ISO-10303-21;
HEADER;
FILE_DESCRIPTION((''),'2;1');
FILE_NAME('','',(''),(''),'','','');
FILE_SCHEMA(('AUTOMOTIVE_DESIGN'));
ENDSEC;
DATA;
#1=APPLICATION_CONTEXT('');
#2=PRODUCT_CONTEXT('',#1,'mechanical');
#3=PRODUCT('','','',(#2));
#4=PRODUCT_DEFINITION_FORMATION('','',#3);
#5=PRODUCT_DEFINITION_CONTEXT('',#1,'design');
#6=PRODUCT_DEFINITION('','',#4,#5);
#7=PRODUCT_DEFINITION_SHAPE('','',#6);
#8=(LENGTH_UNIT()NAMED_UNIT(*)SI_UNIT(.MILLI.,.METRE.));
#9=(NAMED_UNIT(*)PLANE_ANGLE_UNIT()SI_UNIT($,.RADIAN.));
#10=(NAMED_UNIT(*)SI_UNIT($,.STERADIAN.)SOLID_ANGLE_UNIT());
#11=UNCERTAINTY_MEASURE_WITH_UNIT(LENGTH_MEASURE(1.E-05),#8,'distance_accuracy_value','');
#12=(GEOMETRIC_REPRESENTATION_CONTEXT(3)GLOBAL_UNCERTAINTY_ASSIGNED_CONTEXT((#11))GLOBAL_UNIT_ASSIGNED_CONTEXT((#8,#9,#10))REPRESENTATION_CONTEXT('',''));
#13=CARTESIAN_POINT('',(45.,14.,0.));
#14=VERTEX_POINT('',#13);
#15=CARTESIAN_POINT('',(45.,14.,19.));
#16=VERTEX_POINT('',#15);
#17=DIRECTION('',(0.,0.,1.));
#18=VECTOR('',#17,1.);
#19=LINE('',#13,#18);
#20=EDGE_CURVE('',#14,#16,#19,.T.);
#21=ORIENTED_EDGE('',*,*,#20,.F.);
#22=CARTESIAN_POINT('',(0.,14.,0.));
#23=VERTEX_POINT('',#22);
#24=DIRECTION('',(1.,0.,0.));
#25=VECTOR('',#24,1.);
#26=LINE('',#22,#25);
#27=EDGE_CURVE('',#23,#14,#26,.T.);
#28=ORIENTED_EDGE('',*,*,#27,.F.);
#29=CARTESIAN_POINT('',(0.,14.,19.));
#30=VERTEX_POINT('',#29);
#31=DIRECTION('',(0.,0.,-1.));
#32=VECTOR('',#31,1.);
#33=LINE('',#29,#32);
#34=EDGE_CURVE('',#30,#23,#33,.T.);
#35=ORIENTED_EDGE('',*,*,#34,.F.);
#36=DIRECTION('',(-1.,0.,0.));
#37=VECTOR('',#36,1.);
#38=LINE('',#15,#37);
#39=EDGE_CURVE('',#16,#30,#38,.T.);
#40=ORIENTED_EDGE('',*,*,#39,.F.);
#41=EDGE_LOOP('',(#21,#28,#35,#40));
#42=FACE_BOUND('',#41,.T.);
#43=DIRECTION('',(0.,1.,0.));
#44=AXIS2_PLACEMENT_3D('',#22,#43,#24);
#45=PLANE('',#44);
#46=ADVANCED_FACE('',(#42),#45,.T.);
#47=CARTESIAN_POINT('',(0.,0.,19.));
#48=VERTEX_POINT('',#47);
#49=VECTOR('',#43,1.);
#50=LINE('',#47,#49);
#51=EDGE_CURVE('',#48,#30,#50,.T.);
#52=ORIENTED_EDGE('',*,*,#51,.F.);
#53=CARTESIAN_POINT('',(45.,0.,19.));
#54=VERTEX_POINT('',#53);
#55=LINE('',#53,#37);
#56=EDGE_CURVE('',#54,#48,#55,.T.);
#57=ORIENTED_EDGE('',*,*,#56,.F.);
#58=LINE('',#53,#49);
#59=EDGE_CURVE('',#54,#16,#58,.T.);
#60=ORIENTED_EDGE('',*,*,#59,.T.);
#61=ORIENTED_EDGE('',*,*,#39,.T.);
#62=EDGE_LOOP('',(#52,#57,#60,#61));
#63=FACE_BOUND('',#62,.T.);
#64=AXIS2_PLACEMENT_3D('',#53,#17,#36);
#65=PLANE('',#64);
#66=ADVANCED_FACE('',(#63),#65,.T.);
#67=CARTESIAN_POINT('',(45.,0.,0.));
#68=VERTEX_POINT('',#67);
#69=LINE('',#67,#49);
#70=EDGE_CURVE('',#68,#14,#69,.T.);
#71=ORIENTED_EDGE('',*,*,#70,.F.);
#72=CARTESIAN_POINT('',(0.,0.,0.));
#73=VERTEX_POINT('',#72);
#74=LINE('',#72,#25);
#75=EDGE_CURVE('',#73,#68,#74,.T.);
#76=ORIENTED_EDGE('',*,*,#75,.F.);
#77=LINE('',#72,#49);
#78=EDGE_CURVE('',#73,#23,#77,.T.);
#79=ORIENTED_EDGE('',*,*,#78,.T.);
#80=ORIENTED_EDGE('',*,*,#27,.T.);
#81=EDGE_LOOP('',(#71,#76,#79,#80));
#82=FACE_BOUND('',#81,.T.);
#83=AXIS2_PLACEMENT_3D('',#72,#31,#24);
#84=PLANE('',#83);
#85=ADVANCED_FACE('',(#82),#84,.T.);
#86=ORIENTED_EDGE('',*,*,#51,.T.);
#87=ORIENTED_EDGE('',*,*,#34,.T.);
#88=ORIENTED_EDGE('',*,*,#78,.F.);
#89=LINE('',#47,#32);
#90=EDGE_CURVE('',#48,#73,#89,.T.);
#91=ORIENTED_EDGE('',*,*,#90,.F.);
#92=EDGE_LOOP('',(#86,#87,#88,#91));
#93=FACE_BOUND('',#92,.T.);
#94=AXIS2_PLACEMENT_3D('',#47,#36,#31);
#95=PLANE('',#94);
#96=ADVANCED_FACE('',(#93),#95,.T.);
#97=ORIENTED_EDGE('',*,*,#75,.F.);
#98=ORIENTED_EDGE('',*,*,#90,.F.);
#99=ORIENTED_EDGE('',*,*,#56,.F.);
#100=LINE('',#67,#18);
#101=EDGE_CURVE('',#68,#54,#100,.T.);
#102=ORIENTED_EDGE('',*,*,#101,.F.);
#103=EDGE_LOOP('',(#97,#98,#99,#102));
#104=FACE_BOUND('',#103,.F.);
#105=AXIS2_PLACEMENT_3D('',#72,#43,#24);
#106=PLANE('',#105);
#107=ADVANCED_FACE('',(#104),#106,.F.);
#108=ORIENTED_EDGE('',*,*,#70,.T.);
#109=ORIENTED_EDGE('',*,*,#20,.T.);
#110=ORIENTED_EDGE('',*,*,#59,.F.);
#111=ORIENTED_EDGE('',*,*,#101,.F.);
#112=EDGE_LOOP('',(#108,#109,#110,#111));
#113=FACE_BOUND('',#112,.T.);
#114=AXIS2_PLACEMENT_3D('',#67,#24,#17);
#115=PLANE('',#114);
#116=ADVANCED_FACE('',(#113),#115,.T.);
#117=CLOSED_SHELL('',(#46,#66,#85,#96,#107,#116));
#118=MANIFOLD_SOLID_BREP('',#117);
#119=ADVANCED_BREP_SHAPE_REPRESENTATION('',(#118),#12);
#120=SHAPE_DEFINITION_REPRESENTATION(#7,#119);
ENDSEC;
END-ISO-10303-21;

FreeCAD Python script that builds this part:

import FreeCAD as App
import Part
import Sketcher


def add_polygon(sketch, points):
    """Adds a closed chain of lines whose ends are joined by coincident constraints."""
    first, n = sketch.GeometryCount, len(points)
    for a, b in zip(points, points[1:] + points[:1]):
        sketch.addGeometry(Part.LineSegment(App.Vector(*a, 0), App.Vector(*b, 0)), False)
    for i in range(n):
        sketch.addConstraint(Sketcher.Constraint("Coincident", first + i, 2, first + (i + 1) % n, 1))

doc = App.newDocument("Part")
body = doc.addObject("PartDesign::Body", "Body")

# Sketch on XZ plane
sketch1 = doc.addObject("Sketcher::SketchObject", "Sketch")
body.addObject(sketch1)
sketch1.AttachmentSupport = (doc.XZ_Plane, [""])
sketch1.MapMode = "FlatFace"
add_polygon(sketch1, [(45, 0), (0, 0), (0, 19), (45, 19)])  # lines 0-3
sketch1.addConstraint(Sketcher.Constraint("Horizontal", 0))
sketch1.addConstraint(Sketcher.Constraint("Vertical", 1))
sketch1.addConstraint(Sketcher.Constraint("Horizontal", 2))
sketch1.addConstraint(Sketcher.Constraint("Vertical", 3))
sketch1.addConstraint(Sketcher.Constraint("Coincident", 0, 2, -1, 1))
sketch1.addConstraint(Sketcher.Constraint("DistanceX", 0, 2, 0, 1, 45.0))
sketch1.addConstraint(Sketcher.Constraint("DistanceY", 1, 1, 1, 2, 19.0))
pad1 = doc.addObject("PartDesign::Pad", "Pad")
body.addObject(pad1)
pad1.Profile = sketch1
pad1.Length = 14
pad1.Reversed = True

doc.recompute()
